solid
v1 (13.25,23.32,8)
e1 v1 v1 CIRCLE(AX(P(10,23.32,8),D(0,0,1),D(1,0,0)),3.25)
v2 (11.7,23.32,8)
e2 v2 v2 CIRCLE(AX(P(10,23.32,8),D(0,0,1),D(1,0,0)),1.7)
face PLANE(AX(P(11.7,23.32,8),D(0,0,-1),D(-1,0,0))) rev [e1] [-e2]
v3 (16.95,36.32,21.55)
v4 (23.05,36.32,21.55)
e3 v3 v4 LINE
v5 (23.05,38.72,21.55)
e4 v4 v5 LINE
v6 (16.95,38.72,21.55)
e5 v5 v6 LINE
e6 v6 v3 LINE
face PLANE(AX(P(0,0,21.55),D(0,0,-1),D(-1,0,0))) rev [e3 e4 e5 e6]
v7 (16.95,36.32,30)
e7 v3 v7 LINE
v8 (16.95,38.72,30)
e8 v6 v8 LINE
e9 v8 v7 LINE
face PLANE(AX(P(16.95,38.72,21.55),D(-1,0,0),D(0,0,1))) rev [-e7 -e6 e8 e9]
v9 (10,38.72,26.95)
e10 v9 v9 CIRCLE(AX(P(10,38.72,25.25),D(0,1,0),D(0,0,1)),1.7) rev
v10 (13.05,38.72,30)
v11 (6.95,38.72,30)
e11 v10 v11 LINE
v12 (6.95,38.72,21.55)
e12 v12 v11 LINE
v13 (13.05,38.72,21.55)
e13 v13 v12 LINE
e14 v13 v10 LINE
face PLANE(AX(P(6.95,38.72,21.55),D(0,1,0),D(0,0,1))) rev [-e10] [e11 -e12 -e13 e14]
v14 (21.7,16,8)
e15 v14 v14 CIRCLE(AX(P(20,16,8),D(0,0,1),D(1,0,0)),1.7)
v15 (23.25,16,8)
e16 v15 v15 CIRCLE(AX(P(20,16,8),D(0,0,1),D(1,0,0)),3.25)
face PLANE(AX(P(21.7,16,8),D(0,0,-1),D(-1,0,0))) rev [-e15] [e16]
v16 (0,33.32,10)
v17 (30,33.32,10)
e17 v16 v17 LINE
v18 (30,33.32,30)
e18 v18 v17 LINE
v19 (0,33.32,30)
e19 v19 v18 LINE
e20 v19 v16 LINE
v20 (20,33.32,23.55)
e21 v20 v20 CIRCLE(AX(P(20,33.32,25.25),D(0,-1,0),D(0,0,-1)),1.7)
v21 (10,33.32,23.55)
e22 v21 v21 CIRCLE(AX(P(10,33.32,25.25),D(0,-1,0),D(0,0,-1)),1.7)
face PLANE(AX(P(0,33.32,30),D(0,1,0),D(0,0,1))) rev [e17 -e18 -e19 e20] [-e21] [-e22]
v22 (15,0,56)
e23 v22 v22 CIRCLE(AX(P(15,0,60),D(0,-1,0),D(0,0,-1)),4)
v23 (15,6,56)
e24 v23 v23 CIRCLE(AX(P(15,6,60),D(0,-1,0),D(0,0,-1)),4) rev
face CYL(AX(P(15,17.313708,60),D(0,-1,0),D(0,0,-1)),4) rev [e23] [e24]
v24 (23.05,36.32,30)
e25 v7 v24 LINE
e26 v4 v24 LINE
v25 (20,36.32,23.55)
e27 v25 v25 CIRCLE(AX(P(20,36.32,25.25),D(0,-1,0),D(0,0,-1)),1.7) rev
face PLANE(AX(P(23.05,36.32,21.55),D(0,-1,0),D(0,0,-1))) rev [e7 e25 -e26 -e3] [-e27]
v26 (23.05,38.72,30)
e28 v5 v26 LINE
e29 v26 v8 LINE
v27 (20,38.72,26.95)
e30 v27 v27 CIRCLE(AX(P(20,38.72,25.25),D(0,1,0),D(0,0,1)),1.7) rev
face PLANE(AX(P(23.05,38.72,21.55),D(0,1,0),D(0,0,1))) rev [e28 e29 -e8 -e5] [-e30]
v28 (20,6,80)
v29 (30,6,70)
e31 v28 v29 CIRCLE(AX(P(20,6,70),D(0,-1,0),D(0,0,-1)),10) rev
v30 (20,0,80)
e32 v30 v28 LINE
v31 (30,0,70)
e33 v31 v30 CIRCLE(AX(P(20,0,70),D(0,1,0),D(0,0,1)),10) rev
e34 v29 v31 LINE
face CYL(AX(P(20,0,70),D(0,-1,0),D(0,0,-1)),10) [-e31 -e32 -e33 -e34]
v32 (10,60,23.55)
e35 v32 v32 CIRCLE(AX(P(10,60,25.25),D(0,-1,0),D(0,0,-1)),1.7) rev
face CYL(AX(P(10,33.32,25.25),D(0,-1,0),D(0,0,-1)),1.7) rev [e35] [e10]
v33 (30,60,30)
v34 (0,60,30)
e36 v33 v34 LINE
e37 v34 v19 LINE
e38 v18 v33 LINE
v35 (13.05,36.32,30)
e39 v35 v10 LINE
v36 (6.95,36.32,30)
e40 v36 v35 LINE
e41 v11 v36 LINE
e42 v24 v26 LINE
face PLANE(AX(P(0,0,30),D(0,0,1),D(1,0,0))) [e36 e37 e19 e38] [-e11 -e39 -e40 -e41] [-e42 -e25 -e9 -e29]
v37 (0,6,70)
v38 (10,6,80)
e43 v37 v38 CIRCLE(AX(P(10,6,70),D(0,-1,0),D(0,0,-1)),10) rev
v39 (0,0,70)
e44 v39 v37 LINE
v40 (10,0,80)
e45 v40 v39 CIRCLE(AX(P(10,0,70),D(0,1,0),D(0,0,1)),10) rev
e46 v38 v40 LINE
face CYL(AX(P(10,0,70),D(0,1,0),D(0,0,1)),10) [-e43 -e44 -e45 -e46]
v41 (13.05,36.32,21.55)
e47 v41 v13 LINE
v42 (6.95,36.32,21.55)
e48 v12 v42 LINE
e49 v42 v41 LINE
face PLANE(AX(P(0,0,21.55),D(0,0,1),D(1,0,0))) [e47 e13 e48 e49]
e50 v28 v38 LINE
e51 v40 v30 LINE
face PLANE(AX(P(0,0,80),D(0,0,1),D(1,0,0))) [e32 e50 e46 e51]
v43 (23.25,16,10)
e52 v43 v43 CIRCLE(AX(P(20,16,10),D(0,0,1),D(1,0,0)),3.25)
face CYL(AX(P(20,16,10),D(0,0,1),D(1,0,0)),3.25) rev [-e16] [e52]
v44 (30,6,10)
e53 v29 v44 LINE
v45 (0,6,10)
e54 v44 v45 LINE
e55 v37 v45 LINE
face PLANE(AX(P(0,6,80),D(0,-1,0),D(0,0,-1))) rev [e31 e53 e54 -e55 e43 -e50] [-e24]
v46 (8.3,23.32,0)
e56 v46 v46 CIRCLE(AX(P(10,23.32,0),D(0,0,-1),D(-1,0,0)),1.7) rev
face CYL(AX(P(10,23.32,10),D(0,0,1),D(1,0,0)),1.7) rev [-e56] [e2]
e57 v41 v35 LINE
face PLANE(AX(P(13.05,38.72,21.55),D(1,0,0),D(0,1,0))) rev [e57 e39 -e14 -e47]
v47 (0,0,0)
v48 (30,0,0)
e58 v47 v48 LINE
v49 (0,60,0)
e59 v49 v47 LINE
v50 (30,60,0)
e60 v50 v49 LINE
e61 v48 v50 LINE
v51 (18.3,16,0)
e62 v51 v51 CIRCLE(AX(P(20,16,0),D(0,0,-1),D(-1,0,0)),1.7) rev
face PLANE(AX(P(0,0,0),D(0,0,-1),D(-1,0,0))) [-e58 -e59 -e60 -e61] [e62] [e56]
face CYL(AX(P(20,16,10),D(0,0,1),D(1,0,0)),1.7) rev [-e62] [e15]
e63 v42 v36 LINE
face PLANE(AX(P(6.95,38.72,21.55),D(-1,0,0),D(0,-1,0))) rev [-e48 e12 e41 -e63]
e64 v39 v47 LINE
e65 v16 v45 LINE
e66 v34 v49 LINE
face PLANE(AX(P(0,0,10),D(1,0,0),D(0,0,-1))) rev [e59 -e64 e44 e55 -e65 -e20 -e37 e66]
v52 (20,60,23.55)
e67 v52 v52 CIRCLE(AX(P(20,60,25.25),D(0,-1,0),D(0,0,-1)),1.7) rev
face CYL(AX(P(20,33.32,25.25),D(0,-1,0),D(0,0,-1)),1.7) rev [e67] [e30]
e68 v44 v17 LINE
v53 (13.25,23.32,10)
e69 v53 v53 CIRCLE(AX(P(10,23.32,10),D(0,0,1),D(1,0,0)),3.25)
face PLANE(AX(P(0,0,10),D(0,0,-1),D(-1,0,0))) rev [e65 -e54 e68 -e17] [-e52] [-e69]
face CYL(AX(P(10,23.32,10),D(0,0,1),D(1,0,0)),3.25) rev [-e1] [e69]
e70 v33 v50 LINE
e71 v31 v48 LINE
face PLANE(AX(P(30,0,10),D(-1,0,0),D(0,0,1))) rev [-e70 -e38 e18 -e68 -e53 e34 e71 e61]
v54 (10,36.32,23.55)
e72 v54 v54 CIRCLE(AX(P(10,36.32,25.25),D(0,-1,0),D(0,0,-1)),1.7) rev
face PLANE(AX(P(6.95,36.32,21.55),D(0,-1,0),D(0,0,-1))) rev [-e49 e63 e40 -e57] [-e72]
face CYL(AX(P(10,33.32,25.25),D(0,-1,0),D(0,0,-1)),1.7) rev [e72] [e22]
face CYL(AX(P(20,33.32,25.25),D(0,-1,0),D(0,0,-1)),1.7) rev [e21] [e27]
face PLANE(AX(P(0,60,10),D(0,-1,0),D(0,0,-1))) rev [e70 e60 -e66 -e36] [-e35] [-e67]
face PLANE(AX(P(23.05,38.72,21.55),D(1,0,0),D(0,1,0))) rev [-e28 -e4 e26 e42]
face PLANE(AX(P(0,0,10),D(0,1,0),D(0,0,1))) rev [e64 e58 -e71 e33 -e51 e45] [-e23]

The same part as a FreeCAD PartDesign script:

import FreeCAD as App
import Part
import Sketcher


def edges_at(feature, points):
    """Names of the edges that pass closest to the given points."""
    edges = feature.Shape.Edges
    near = lambda p: min(range(len(edges)), key=lambda i: edges[i].distToShape(Part.Vertex(*p))[0])
    return sorted({f"Edge{near(p) + 1}" for p in points})


def add_polygon(sketch, points):
    """Adds a closed chain of lines whose ends are joined by coincident constraints."""
    first, n = sketch.GeometryCount, len(points)
    for a, b in zip(points, points[1:] + points[:1]):
        sketch.addGeometry(Part.LineSegment(App.Vector(*a, 0), App.Vector(*b, 0)), False)
    for i in range(n):
        sketch.addConstraint(Sketcher.Constraint("Coincident", first + i, 2, first + (i + 1) % n, 1))

doc = App.newDocument("Part")
body = doc.addObject("PartDesign::Body", "Body")

sketch1 = body.newObject("Sketcher::SketchObject", "Sketch")
sketch1.AttachmentSupport = (doc.getObject("XY_Plane"), [""])
sketch1.MapMode = "FlatFace"
add_polygon(sketch1, [(0, 60), (0, 0), (30, 0), (30, 60)])
sketch1.addConstraint([
    Sketcher.Constraint("Vertical", 0),
    Sketcher.Constraint("Horizontal", 1),
    Sketcher.Constraint("Vertical", 2),
    Sketcher.Constraint("Horizontal", 3),
    Sketcher.Constraint("Coincident", 0, 2, -1, 1),
    Sketcher.Constraint("DistanceX", 1, 1, 1, 2, 30.0),
    Sketcher.Constraint("DistanceY", 0, 2, 0, 1, 60.0),
])
pad1 = body.newObject("PartDesign::Pad", "Pad")
pad1.Profile = sketch1
pad1.Length = 10

sketch2 = body.newObject("Sketcher::SketchObject", "Sketch001")
sketch2.AttachmentSupport = (doc.getObject("XY_Plane"), [""])
sketch2.MapMode = "FlatFace"
sketch2.AttachmentOffset = App.Placement(App.Vector(0, 0, 10), App.Rotation())
add_polygon(sketch2, [(0, 6), (0, 0), (30, 0), (30, 6)])
sketch2.addConstraint([
    Sketcher.Constraint("Vertical", 0),
    Sketcher.Constraint("Horizontal", 1),
    Sketcher.Constraint("Vertical", 2),
    Sketcher.Constraint("Horizontal", 3),
    Sketcher.Constraint("Coincident", 0, 2, -1, 1),
    Sketcher.Constraint("DistanceX", 1, 1, 1, 2, 30.0),
    Sketcher.Constraint("DistanceY", 0, 2, 0, 1, 6.0),
])
pad2 = body.newObject("PartDesign::Pad", "Pad001")
pad2.Profile = sketch2
pad2.Length = 70

sketch3 = body.newObject("Sketcher::SketchObject", "Sketch002")
sketch3.AttachmentSupport = (doc.getObject("XZ_Plane"), [""])
sketch3.MapMode = "FlatFace"
sketch3.addGeometry(Part.Circle(App.Vector(15, 60, 0), App.Vector(0, 0, 1), 4), False)
sketch3.addConstraint([
    Sketcher.Constraint("Diameter", 0, 8.0),
    Sketcher.Constraint("DistanceX", -1, 1, 0, 3, 15.0),
    Sketcher.Constraint("DistanceY", -1, 1, 0, 3, 60.0),
])
pocket1 = body.newObject("PartDesign::Pocket", "Pocket")
pocket1.Profile = sketch3
pocket1.Length = 6

sketch4 = body.newObject("Sketcher::SketchObject", "Sketch003")
sketch4.AttachmentSupport = (doc.getObject("XY_Plane"), [""])
sketch4.MapMode = "FlatFace"
sketch4.AttachmentOffset = App.Placement(App.Vector(0, 0, 10), App.Rotation())
add_polygon(sketch4, [(0, 60), (0, 33), (30, 33), (30, 60)])
sketch4.addConstraint([
    Sketcher.Constraint("Vertical", 0),
    Sketcher.Constraint("Horizontal", 1),
    Sketcher.Constraint("Vertical", 2),
    Sketcher.Constraint("Horizontal", 3),
    Sketcher.Constraint("PointOnObject", 0, 2, -2),
    Sketcher.Constraint("DistanceX", 1, 1, 1, 2, 30.0),
    Sketcher.Constraint("DistanceY", -1, 1, 2, 2, 60.0),
    Sketcher.Constraint("DistanceY", 0, 2, 0, 1, 26.68),
])
pad3 = body.newObject("PartDesign::Pad", "Pad002")
pad3.Profile = sketch4
pad3.Length = 20

sketch5 = body.newObject("Sketcher::SketchObject", "Sketch004")
sketch5.AttachmentSupport = (doc.getObject("XZ_Plane"), [""])
sketch5.MapMode = "FlatFace"
sketch5.AttachmentOffset = App.Placement(App.Vector(0, 0, -33.32), App.Rotation())
sketch5.addGeometry([
    Part.Circle(App.Vector(10, 25.2, 0), App.Vector(0, 0, 1), 1.7),
    Part.Circle(App.Vector(20, 25.2, 0), App.Vector(0, 0, 1), 1.7),
], False)
sketch5.addConstraint([
    Sketcher.Constraint("Equal", 0, 1),
    Sketcher.Constraint("Horizontal", 0, 3, 1, 3),
    Sketcher.Constraint("Diameter", 0, 3.4),
    Sketcher.Constraint("DistanceX", -1, 1, 0, 3, 10.0),
    Sketcher.Constraint("DistanceX", -1, 1, 1, 3, 20.0),
    Sketcher.Constraint("DistanceY", -1, 1, 0, 3, 25.25),
])
doc.recompute()
hole = body.newObject("PartDesign::Hole", "Hole")
hole.Profile = sketch5
hole.ThreadType = "None"
hole.Diameter = 3.4
hole.DepthType = "Dimension"
hole.Depth = 26.68
hole.DrillPoint = "Angled"
hole.DrillPointAngle = 118

sketch6 = body.newObject("Sketcher::SketchObject", "Sketch005")
sketch6.AttachmentSupport = (doc.getObject("XY_Plane"), [""])
sketch6.MapMode = "FlatFace"
sketch6.AttachmentOffset = App.Placement(App.Vector(0, 0, 10), App.Rotation())
sketch6.addGeometry([
    Part.Circle(App.Vector(10, 23.3, 0), App.Vector(0, 0, 1), 1.7),
    Part.Circle(App.Vector(20, 16, 0), App.Vector(0, 0, 1), 1.7),
], False)
sketch6.addConstraint([
    Sketcher.Constraint("Equal", 0, 1),
    Sketcher.Constraint("Diameter", 0, 3.4),
    Sketcher.Constraint("DistanceX", -1, 1, 0, 3, 10.0),
    Sketcher.Constraint("DistanceX", -1, 1, 1, 3, 20.0),
    Sketcher.Constraint("DistanceY", -1, 1, 1, 3, 16.0),
    Sketcher.Constraint("DistanceY", -1, 1, 0, 3, 23.32),
])
doc.recompute()
hole2 = body.newObject("PartDesign::Hole", "Hole001")
hole2.Profile = sketch6
hole2.ThreadType = "None"
hole2.Diameter = 3.4
hole2.DepthType = "Dimension"
hole2.Depth = 10
hole2.DrillPoint = "Angled"
hole2.DrillPointAngle = 118
hole2.HoleCutType = "Counterbore"
hole2.HoleCutDiameter = 6.5
hole2.HoleCutDepth = 2
doc.recompute()

fillet = body.newObject("PartDesign::Fillet", "Fillet")
fillet.Base = (hole2, edges_at(hole2, [(30, 3, 80), (0, 3, 80)]))
fillet.Radius = 10

sketch7 = body.newObject("Sketcher::SketchObject", "Sketch006")
sketch7.AttachmentSupport = (doc.getObject("XY_Plane"), [""])
sketch7.MapMode = "FlatFace"
sketch7.AttachmentOffset = App.Placement(App.Vector(0, 0, 30), App.Rotation())
add_polygon(sketch7, [(7, 38.7), (7, 36.3), (13.1, 36.3), (13.1, 38.7)])
add_polygon(sketch7, [(16.9, 38.7), (16.9, 36.3), (23.1, 36.3), (23.1, 38.7)])
sketch7.addConstraint([
    Sketcher.Constraint("Vertical", 0),
    Sketcher.Constraint("Horizontal", 1),
    Sketcher.Constraint("Vertical", 2),
    Sketcher.Constraint("Horizontal", 3),
    Sketcher.Constraint("Vertical", 4),
    Sketcher.Constraint("Horizontal", 5),
    Sketcher.Constraint("Vertical", 6),
    Sketcher.Constraint("Horizontal", 7),
    Sketcher.Constraint("Horizontal", 1, 2, 4, 2),
    Sketcher.Constraint("Horizontal", 3, 2, 6, 2),
    Sketcher.Constraint("Equal", 3, 5),
    Sketcher.Constraint("DistanceX", 1, 1, 1, 2, 6.1),
    Sketcher.Constraint("DistanceY", 0, 2, 0, 1, 2.4),
    Sketcher.Constraint("DistanceX", 0, 2, 4, 2, 10.0),
    Sketcher.Constraint("DistanceX", -1, 1, 0, 2, 6.95),
    Sketcher.Constraint("DistanceY", -1, 1, 0, 2, 36.32),
])
pocket2 = body.newObject("PartDesign::Pocket", "Pocket001")
pocket2.Profile = sketch7
pocket2.Length = 8.45

doc.recompute()
